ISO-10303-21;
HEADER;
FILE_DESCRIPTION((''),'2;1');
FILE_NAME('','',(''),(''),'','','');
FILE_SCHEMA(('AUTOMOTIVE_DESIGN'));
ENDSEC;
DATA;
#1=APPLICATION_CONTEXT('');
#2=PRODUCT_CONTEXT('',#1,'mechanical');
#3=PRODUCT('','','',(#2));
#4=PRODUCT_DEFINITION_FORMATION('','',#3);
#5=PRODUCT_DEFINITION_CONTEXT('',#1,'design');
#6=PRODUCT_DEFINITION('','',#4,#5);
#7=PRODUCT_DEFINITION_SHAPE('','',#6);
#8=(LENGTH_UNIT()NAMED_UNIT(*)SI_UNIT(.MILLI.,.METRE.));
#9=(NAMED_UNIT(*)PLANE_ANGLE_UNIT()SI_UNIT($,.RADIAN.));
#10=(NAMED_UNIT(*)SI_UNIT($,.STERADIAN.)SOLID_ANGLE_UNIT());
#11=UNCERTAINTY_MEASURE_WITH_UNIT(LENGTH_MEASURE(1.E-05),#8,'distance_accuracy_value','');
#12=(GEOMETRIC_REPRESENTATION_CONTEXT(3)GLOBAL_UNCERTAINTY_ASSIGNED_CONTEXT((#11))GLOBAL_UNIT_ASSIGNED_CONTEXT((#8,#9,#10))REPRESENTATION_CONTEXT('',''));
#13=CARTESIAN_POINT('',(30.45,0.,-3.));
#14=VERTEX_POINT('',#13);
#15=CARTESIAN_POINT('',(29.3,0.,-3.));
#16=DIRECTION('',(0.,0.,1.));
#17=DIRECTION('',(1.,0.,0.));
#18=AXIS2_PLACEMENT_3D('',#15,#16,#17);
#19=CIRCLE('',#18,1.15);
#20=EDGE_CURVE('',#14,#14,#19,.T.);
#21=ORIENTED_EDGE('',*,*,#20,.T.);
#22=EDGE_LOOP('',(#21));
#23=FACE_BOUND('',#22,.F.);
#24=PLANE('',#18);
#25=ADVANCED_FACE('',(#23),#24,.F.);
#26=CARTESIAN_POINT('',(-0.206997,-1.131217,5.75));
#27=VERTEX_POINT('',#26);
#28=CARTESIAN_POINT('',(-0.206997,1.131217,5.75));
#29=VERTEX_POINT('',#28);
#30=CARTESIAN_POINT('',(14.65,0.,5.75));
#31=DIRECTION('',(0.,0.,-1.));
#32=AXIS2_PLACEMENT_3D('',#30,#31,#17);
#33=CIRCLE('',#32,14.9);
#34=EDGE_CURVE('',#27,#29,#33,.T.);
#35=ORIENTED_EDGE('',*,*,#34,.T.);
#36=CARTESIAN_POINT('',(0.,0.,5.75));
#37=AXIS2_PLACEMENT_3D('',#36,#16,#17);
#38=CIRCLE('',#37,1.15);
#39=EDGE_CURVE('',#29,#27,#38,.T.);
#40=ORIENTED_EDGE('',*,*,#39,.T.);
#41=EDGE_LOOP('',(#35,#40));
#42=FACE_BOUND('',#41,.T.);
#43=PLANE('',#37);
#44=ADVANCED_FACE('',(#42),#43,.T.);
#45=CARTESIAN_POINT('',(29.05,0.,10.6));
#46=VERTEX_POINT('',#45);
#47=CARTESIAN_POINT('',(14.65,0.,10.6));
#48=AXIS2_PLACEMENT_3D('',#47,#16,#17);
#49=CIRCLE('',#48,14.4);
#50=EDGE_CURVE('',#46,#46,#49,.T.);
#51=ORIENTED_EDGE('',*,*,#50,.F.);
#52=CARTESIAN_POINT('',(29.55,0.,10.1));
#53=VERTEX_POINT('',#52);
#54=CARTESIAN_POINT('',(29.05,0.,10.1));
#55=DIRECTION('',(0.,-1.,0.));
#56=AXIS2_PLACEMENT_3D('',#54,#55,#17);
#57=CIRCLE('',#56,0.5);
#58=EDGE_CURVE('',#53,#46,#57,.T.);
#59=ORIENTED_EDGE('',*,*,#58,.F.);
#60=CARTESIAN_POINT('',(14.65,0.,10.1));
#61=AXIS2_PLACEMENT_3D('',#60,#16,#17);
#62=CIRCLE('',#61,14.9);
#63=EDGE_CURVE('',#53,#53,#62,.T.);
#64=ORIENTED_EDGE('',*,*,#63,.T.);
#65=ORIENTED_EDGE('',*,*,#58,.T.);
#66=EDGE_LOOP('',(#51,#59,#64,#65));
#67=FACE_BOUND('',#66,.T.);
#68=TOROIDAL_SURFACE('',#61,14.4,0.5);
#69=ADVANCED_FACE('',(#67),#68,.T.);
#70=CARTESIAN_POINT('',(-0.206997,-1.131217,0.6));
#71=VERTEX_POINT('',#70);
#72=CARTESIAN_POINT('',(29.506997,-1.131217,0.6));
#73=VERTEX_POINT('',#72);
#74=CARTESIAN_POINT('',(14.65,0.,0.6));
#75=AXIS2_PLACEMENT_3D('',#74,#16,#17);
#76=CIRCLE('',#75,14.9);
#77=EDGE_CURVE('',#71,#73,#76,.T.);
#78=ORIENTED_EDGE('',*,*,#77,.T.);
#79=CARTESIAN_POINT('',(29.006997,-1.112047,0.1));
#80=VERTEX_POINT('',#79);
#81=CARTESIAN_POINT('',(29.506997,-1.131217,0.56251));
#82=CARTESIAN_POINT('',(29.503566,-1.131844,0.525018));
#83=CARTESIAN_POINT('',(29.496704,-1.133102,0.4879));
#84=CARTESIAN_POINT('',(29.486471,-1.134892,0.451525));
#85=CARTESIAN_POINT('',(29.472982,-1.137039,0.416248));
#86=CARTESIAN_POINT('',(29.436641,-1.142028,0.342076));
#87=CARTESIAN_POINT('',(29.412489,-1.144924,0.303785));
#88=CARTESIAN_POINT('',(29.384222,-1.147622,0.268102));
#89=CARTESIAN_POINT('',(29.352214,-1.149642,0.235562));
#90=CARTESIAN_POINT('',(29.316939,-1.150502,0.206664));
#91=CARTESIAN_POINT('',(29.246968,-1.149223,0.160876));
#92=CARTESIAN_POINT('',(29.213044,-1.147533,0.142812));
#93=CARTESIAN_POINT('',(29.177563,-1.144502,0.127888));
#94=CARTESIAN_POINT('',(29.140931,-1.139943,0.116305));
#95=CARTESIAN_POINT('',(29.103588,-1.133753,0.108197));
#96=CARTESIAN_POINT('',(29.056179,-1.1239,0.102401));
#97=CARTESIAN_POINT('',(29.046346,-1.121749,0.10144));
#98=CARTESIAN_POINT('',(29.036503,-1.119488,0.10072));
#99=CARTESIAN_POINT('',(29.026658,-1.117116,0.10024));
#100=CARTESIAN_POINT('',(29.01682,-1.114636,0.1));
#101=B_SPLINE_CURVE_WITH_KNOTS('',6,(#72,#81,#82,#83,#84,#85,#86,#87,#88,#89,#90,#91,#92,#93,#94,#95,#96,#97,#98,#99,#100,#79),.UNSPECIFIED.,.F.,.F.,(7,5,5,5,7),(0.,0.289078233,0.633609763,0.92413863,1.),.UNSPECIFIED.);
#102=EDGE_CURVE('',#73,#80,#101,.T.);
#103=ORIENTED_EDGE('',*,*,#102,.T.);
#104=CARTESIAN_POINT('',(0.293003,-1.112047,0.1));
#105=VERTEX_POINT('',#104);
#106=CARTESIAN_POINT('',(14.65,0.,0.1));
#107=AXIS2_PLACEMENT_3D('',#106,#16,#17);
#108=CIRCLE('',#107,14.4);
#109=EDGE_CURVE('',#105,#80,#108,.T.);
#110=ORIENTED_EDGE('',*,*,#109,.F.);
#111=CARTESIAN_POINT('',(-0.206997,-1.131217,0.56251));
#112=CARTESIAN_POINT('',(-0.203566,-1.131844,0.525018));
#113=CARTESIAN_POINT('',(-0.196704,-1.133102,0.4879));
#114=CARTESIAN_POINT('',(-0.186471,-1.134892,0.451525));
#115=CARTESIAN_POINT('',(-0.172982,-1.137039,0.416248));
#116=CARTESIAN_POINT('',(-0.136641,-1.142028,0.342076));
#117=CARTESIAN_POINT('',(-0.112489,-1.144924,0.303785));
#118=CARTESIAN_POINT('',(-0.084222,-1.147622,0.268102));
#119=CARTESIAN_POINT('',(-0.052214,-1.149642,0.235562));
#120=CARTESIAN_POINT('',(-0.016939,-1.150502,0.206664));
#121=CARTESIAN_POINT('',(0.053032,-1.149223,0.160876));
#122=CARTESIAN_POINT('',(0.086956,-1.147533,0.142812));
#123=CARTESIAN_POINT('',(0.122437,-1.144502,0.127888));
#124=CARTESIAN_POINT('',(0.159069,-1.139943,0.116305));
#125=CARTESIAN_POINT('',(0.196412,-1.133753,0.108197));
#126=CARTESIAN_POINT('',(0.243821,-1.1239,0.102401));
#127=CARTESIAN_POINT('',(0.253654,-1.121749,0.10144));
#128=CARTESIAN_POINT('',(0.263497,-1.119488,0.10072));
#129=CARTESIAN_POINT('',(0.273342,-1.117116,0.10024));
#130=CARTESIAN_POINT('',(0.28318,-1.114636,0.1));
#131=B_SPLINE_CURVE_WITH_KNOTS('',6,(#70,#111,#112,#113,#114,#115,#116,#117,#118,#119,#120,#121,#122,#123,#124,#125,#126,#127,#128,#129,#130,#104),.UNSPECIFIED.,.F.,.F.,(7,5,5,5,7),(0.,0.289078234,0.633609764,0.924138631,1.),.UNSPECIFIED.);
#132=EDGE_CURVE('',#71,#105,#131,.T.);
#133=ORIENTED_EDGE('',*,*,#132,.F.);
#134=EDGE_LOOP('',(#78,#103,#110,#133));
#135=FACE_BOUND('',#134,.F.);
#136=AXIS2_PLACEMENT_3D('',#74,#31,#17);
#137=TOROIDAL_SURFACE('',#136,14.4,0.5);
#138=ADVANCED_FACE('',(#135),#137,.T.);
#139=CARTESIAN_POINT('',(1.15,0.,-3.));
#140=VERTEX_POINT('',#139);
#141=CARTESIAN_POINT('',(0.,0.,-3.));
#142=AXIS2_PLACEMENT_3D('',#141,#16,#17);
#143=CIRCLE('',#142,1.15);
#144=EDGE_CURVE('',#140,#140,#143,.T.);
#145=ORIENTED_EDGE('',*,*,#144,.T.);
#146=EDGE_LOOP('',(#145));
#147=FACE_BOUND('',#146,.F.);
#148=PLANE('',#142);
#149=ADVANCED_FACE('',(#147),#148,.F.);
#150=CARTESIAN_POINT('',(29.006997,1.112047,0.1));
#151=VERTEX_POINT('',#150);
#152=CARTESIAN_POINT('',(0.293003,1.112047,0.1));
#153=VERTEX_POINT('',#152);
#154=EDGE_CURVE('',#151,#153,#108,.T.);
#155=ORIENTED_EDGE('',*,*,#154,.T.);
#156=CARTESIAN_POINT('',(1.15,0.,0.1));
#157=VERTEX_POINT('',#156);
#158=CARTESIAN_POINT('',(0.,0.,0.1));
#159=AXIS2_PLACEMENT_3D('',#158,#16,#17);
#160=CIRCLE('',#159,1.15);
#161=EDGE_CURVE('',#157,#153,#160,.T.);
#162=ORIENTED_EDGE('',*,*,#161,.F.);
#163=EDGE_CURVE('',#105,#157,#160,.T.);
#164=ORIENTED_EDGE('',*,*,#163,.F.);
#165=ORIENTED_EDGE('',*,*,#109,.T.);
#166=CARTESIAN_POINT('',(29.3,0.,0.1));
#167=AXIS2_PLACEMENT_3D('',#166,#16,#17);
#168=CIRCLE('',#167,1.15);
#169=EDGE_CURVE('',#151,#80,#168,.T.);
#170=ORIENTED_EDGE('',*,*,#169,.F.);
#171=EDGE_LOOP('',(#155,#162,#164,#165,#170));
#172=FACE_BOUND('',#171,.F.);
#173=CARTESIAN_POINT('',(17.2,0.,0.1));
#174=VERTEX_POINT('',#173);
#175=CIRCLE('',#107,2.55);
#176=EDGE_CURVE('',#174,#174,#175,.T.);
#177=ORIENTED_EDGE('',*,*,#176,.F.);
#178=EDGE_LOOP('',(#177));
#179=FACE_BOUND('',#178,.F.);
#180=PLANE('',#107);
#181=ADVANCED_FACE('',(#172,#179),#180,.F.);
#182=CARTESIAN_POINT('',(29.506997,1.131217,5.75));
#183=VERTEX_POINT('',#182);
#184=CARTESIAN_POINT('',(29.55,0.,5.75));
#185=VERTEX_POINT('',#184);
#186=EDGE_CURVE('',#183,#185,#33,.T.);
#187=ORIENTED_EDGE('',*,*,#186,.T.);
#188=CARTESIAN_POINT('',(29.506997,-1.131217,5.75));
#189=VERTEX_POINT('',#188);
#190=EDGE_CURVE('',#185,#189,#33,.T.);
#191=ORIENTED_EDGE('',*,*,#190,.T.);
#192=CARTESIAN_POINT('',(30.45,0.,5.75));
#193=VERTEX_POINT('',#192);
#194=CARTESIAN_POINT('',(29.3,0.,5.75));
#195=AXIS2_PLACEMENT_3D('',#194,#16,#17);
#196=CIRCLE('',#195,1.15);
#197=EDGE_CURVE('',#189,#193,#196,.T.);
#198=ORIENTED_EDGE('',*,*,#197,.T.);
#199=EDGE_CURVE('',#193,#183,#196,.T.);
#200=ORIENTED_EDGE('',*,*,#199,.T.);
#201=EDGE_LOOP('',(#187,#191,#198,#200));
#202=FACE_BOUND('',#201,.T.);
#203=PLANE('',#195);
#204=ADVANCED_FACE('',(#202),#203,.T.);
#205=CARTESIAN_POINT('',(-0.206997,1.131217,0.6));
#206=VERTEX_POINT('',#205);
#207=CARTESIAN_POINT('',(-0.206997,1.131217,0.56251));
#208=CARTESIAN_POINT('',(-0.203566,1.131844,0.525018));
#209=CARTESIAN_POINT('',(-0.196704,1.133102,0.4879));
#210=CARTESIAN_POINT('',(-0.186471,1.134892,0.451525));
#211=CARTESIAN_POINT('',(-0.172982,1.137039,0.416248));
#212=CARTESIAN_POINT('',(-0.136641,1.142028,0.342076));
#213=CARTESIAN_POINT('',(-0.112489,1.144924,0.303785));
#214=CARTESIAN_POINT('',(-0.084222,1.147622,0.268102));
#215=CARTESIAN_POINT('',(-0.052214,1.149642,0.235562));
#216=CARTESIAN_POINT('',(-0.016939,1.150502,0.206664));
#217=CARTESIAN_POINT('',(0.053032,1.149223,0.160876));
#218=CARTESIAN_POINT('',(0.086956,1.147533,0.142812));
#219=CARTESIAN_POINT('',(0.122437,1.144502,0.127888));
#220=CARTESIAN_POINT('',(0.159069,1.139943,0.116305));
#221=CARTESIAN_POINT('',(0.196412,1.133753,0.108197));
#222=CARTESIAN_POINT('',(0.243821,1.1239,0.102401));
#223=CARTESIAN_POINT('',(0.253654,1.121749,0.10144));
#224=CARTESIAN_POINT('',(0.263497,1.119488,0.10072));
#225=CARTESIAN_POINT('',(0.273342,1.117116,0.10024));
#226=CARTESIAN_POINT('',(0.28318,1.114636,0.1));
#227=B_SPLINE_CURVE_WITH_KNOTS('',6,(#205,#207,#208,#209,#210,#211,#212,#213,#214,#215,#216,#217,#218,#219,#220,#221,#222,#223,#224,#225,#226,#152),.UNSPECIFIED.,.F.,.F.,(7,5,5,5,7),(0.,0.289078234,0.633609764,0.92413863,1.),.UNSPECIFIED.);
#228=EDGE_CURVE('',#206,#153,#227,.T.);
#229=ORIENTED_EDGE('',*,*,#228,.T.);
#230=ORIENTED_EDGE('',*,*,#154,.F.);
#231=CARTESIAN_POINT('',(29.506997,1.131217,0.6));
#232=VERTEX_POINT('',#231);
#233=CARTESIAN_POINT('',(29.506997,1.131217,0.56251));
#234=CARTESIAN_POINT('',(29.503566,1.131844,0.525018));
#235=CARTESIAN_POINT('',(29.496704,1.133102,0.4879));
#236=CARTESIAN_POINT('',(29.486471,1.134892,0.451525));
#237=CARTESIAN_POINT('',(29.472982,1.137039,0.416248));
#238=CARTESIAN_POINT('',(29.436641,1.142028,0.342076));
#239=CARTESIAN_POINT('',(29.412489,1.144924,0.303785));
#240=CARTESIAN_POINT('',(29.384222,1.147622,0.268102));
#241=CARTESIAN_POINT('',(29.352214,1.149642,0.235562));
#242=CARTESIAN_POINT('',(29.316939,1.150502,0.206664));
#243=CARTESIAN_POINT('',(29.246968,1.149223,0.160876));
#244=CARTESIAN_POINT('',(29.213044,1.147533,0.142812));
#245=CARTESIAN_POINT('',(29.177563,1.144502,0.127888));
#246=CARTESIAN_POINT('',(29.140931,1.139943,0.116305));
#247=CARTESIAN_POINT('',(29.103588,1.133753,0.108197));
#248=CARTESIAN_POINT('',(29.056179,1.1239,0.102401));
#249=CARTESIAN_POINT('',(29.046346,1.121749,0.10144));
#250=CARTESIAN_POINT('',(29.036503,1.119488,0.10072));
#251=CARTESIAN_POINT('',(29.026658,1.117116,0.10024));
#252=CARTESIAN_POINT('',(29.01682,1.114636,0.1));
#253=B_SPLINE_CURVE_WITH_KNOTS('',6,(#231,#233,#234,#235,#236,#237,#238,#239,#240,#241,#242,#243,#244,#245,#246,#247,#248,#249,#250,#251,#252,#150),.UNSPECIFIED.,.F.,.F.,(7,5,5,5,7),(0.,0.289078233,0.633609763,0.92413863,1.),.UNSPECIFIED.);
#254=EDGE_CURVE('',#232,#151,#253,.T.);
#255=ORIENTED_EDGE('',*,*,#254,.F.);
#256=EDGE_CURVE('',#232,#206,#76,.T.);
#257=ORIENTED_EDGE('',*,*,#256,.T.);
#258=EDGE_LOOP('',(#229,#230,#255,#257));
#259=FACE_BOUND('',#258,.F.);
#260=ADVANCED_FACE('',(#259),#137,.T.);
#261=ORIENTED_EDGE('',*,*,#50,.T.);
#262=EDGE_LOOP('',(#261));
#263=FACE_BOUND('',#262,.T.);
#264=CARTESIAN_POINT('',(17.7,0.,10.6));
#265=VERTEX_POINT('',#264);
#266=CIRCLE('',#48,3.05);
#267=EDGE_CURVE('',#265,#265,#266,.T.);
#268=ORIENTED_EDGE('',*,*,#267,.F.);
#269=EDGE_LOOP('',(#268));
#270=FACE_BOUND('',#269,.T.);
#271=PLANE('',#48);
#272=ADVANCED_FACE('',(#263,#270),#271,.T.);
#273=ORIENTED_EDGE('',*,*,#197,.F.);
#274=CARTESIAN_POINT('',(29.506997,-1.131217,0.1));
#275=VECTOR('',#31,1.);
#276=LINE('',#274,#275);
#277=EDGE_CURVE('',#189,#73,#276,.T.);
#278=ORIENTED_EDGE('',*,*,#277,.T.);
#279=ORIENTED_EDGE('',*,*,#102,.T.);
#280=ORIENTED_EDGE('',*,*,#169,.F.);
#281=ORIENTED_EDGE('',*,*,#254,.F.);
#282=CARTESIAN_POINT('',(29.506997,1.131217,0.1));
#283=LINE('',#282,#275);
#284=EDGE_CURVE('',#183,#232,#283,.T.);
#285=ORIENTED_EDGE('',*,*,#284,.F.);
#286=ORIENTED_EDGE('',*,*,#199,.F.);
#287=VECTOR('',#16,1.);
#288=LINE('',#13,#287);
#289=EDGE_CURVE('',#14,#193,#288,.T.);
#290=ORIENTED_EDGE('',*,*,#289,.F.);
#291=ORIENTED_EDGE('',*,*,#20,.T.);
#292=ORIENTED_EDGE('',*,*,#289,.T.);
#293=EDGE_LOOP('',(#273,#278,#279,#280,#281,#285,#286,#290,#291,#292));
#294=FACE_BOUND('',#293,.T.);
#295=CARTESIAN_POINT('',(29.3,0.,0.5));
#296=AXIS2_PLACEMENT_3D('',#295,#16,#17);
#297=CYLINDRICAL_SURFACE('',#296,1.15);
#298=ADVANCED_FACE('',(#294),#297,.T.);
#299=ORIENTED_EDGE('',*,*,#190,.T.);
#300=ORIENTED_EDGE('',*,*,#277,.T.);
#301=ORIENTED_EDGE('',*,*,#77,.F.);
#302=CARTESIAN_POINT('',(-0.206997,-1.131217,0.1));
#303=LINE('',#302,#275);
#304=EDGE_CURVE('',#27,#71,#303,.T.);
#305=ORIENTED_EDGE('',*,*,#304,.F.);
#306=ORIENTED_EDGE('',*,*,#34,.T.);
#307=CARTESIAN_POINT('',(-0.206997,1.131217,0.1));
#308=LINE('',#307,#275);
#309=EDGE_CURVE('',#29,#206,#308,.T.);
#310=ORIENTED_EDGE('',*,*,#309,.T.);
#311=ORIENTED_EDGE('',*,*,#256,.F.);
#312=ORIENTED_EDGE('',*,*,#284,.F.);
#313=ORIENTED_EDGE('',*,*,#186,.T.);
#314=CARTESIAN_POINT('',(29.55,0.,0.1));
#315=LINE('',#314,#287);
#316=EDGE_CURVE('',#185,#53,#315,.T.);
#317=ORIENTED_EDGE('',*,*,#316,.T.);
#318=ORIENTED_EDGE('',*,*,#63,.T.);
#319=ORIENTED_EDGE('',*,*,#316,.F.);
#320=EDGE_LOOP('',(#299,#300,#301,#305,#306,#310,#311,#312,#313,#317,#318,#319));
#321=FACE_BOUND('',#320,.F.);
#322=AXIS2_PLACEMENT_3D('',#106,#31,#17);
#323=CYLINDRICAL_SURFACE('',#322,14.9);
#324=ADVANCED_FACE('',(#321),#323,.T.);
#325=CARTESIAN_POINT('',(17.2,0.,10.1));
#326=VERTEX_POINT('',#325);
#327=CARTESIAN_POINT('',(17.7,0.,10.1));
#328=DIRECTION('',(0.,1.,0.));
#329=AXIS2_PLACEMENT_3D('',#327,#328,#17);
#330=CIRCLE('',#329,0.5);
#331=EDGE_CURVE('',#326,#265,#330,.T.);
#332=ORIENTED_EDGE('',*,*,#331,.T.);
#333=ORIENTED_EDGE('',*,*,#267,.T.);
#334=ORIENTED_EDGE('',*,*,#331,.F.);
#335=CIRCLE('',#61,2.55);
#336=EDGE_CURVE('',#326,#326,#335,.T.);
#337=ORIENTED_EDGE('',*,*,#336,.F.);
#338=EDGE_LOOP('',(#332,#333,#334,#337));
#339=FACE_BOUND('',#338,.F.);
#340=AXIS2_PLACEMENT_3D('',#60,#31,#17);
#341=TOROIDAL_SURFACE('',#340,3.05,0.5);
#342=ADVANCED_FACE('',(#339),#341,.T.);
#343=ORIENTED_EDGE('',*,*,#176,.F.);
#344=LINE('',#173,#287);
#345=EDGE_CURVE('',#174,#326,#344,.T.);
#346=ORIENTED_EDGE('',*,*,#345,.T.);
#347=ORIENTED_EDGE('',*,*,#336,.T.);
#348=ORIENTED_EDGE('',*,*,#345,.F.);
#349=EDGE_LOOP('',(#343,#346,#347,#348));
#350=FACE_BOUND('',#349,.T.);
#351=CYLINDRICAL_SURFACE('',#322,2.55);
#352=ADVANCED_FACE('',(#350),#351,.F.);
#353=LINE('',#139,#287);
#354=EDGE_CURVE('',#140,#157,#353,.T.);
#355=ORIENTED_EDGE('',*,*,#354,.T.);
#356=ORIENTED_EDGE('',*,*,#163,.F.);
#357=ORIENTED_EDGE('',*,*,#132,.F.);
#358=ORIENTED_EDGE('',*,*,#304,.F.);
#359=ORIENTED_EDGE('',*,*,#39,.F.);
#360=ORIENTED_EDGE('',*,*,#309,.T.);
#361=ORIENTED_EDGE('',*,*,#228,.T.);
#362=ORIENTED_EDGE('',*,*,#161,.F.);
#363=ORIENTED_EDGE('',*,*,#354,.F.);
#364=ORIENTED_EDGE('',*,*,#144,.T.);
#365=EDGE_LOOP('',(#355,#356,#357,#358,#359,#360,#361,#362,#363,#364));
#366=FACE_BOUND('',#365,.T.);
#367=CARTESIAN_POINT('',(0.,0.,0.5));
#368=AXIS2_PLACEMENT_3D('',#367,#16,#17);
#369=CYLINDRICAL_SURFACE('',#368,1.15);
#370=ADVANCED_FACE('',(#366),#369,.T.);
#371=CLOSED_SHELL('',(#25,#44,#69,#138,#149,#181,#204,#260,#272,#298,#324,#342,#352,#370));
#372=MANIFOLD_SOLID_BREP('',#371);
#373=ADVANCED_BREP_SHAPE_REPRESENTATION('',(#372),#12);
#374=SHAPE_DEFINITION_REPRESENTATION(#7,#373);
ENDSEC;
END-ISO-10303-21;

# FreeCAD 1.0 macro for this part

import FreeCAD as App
import Part
import Sketcher


def edges_at(feature, points):
    """Names of the edges that pass closest to the given points."""
    edges = feature.Shape.Edges
    near = lambda p: min(range(len(edges)), key=lambda i: edges[i].distToShape(Part.Vertex(*p))[0])
    return sorted({f"Edge{near(p) + 1}" for p in points})

doc = App.newDocument("Part")
params = doc.addObject("Spreadsheet::Sheet", "Params")
for row, (alias, value) in enumerate([
    ("sketch1_diameter", "2.3 mm"),
    ("pad1_length", "5.25 mm"),
    ("pad1_length2", "3.5 mm"),
    ("sketch2_diameter", "29.8 mm"),
    ("sketch2_diameter2", "5.1 mm"),
    ("pad2_length", "10.5 mm"),
    ("fillet_radius", "0.5 mm"),
], start=1):
    params.set(f"A{row}", alias)
    params.set(f"B{row}", "=" + value)
    params.setAlias(f"B{row}", alias)

body = doc.addObject("PartDesign::Body", "Body")
body.AllowCompound = True

# Sketch on XY plane
sketch1 = doc.addObject("Sketcher::SketchObject", "Sketch")
body.addObject(sketch1)
sketch1.AttachmentSupport = (doc.XY_Plane, [""])
sketch1.MapMode = "FlatFace"
sketch1.AttachmentOffset = App.Placement(App.Vector(0, 0, 0.5), App.Rotation())
sketch1.addGeometry([
    Part.Circle(App.Vector(0, 0, 0), App.Vector(0, 0, 1), 1.15),
    Part.Circle(App.Vector(29.3, 0, 0), App.Vector(0, 0, 1), 1.15),
], False)
sketch1.addConstraint([
    Sketcher.Constraint("Coincident", 0, 3, -1, 1),
    Sketcher.Constraint("Equal", 0, 1),
    Sketcher.Constraint("PointOnObject", 1, 3, -1),
    Sketcher.Constraint("Diameter", 0, 2.3),
    Sketcher.Constraint("DistanceX", -1, 1, 1, 3, 29.3),
])
sketch1.setExpression("Constraints[3]", "Params.sketch1_diameter")
pad1 = doc.addObject("PartDesign::Pad", "Pad")
body.addObject(pad1)
pad1.Profile = sketch1
pad1.Type = "TwoLengths"
pad1.setExpression("Length", "Params.pad1_length")
pad1.setExpression("Length2", "Params.pad1_length2")
body2 = doc.addObject("PartDesign::Body", "Body001")

# Sketch on XY plane
sketch2 = doc.addObject("Sketcher::SketchObject", "Sketch001")
body2.addObject(sketch2)
sketch2.AttachmentSupport = (doc.getObject("XY_Plane001"), [""])
sketch2.MapMode = "FlatFace"
sketch2.AttachmentOffset = App.Placement(App.Vector(0, 0, 0.1), App.Rotation())
sketch2.addGeometry([
    Part.Circle(App.Vector(14.65, 0, 0), App.Vector(0, 0, 1), 14.9),
    Part.Circle(App.Vector(14.65, 0, 0), App.Vector(0, 0, 1), 2.55),
], False)
sketch2.addConstraint([
    Sketcher.Constraint("Coincident", 1, 3, 0, 3),
    Sketcher.Constraint("PointOnObject", 0, 3, -1),
    Sketcher.Constraint("Diameter", 0, 29.8),
    Sketcher.Constraint("Diameter", 1, 5.1),
    Sketcher.Constraint("DistanceX", -1, 1, 0, 3, 14.65),
])
sketch2.setExpression("Constraints[2]", "Params.sketch2_diameter")
sketch2.setExpression("Constraints[3]", "Params.sketch2_diameter2")
pad2 = doc.addObject("PartDesign::Pad", "Pad001")
body2.addObject(pad2)
pad2.Profile = sketch2
pad2.setExpression("Length", "Params.pad2_length")
doc.recompute()

fillet = doc.addObject("PartDesign::Fillet", "Fillet")
body2.addObject(fillet)
fillet.Base = (pad2, edges_at(pad2, [(12.1, 0, 10.6), (-0.25, 0, 10.6), (-0.25, 0, 0.1)]))
fillet.setExpression("Radius", "Params.fillet_radius")
doc.recompute()

boolean = doc.addObject("PartDesign::Boolean", "Boolean")
body2.addObject(boolean)
boolean.Type = "Fuse"
boolean.addObjects([body])

doc.recompute()
